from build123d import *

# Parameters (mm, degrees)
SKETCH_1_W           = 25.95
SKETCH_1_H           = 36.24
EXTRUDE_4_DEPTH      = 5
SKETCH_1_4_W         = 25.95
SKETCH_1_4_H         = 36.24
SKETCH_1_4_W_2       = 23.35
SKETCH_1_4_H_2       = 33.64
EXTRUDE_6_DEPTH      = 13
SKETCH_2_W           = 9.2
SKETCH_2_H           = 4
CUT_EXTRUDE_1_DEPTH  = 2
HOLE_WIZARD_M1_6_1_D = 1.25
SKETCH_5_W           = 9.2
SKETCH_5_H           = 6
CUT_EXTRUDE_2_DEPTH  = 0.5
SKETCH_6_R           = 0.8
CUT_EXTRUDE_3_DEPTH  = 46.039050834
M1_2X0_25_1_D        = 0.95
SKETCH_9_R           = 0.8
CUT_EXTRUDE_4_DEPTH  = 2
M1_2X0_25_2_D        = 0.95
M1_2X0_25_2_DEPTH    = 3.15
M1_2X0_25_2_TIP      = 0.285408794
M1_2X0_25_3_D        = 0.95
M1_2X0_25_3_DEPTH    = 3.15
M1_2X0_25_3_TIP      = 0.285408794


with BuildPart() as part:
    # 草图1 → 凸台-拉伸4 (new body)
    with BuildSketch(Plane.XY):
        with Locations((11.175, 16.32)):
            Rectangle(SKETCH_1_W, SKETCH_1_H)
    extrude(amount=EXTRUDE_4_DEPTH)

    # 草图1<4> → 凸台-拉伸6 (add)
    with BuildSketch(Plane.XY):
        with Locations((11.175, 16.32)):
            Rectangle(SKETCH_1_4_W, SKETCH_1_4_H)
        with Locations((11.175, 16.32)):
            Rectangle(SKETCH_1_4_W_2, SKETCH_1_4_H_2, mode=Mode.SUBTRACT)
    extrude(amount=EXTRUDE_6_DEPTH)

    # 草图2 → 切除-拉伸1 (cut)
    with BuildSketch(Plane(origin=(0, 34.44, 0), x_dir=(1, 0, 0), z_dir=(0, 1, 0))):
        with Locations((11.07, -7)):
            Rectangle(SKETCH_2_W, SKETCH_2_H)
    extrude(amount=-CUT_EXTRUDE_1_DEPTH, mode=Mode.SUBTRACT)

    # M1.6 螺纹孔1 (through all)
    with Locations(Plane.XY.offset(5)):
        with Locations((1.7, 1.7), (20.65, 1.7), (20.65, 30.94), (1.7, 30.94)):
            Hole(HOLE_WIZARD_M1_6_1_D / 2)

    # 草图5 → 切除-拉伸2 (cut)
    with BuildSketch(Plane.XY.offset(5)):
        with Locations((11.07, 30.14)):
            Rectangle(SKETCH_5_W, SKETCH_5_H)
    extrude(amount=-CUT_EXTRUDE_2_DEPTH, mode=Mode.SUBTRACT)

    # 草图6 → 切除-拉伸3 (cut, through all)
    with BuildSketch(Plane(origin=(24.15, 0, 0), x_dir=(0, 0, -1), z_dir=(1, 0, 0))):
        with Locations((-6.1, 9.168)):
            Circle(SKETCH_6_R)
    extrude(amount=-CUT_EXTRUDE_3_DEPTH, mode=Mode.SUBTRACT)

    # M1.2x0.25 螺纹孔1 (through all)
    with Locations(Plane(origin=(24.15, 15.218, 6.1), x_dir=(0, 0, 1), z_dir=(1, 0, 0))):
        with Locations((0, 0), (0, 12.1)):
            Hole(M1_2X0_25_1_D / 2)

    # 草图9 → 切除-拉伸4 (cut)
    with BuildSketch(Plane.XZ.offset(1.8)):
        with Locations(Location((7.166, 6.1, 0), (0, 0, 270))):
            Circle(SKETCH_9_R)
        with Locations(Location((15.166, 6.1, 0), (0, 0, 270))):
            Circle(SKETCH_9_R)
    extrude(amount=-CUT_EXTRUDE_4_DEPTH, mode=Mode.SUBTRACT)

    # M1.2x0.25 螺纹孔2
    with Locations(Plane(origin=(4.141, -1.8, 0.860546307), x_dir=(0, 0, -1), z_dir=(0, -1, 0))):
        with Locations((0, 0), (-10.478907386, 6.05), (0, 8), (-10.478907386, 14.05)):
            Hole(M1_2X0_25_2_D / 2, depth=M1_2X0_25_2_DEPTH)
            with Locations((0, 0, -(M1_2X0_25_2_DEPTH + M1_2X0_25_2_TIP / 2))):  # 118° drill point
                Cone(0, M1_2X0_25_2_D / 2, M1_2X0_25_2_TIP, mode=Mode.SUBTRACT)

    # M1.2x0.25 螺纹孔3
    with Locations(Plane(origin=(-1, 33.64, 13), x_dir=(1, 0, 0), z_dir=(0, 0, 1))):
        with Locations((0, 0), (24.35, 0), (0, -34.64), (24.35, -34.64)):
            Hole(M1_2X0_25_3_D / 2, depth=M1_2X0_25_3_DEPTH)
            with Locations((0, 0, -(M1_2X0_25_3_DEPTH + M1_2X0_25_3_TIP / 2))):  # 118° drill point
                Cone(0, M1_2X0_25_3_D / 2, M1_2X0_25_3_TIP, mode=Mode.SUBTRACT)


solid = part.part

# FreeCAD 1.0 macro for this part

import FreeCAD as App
import Part
import Sketcher
from FreeCAD import Vector
Q = App.Units.Quantity


def add_polygon(sketch, points):
    """Adds a closed chain of lines whose ends are joined by coincident constraints."""
    first, n = sketch.GeometryCount, len(points)
    for a, b in zip(points, points[1:] + points[:1]):
        sketch.addGeometry(Part.LineSegment(App.Vector(*a, 0), App.Vector(*b, 0)), False)
    for i in range(n):
        sketch.addConstraint(Sketcher.Constraint("Coincident", first + i, 2, first + (i + 1) % n, 1))

doc = App.newDocument("Part")
body = doc.addObject("PartDesign::Body", "Body")

# Sketch on XY plane
sketch1 = body.newObject("Sketcher::SketchObject", "Sketch")
sketch1.AttachmentSupport = (doc.getObject("XY_Plane"), [""])
sketch1.MapMode = "FlatFace"
add_polygon(sketch1, [(-2, 34), (-2, -2), (24, -2), (24, 34)])  # lines 0-3
sketch1.addConstraint(Sketcher.Constraint("Vertical", 0))
sketch1.addConstraint(Sketcher.Constraint("Horizontal", 1))
sketch1.addConstraint(Sketcher.Constraint("Vertical", 2))
sketch1.addConstraint(Sketcher.Constraint("Horizontal", 3))
sketch1.addConstraint(Sketcher.Constraint("DistanceX", 1, 1, 1, 2, Q("25.95 mm")))
sketch1.addConstraint(Sketcher.Constraint("DistanceY", 0, 2, 0, 1, Q("36.24 mm")))
sketch1.addConstraint(Sketcher.Constraint("DistanceX", 0, 2, -1, 1, Q("1.8 mm")))
sketch1.addConstraint(Sketcher.Constraint("DistanceY", 0, 2, -1, 1, Q("1.8 mm")))
pad1 = body.newObject("PartDesign::Pad", "Pad")
pad1.Profile = sketch1
pad1.Length = 5

# Sketch on XY plane
sketch2 = body.newObject("Sketcher::SketchObject", "Sketch001")
sketch2.AttachmentSupport = (doc.getObject("XY_Plane"), [""])
sketch2.MapMode = "FlatFace"
add_polygon(sketch2, [(-2, 34), (-2, -2), (24, -2), (24, 34)])  # lines 0-3
add_polygon(sketch2, [(23, 0), (0, 0), (0, 33), (23, 33)])  # lines 4-7
sketch2.addConstraint(Sketcher.Constraint("Vertical", 0))
sketch2.addConstraint(Sketcher.Constraint("Horizontal", 1))
sketch2.addConstraint(Sketcher.Constraint("Vertical", 2))
sketch2.addConstraint(Sketcher.Constraint("Horizontal", 3))
sketch2.addConstraint(Sketcher.Constraint("Horizontal", 4))
sketch2.addConstraint(Sketcher.Constraint("Vertical", 5))
sketch2.addConstraint(Sketcher.Constraint("Horizontal", 6))
sketch2.addConstraint(Sketcher.Constraint("Vertical", 7))
sketch2.addConstraint(Sketcher.Constraint("DistanceX", 1, 1, 1, 2, Q("25.95 mm")))
sketch2.addConstraint(Sketcher.Constraint("DistanceX", 4, 2, 4, 1, Q("23.35 mm")))
sketch2.addConstraint(Sketcher.Constraint("DistanceY", 0, 2, 0, 1, Q("36.24 mm")))
sketch2.addConstraint(Sketcher.Constraint("DistanceY", 5, 1, 5, 2, Q("33.64 mm")))
sketch2.addConstraint(Sketcher.Constraint("DistanceX", 0, 2, -1, 1, Q("1.8 mm")))
sketch2.addConstraint(Sketcher.Constraint("DistanceY", 0, 2, -1, 1, Q("1.8 mm")))
sketch2.addConstraint(Sketcher.Constraint("DistanceX", 4, 2, -1, 1, Q("0.5 mm")))
sketch2.addConstraint(Sketcher.Constraint("DistanceY", 4, 2, -1, 1, Q("0.5 mm")))
pad2 = body.newObject("PartDesign::Pad", "Pad001")
pad2.Profile = sketch2
pad2.Length = 13

# Sketch on XZ plane
sketch3 = body.newObject("Sketcher::SketchObject", "Sketch002")
sketch3.AttachmentSupport = (doc.getObject("XZ_Plane"), [""])
sketch3.MapMode = "FlatFace"
sketch3.AttachmentOffset = App.Placement(Vector(0, 0, -34.44), App.Rotation())
add_polygon(sketch3, [(6.5, 5), (6.5, 9), (15.7, 9), (15.7, 5)])  # lines 0-3
sketch3.addConstraint(Sketcher.Constraint("Vertical", 0))
sketch3.addConstraint(Sketcher.Constraint("Horizontal", 1))
sketch3.addConstraint(Sketcher.Constraint("Vertical", 2))
sketch3.addConstraint(Sketcher.Constraint("Horizontal", 3))
sketch3.addConstraint(Sketcher.Constraint("DistanceY", 0, 1, 0, 2, Q("4 mm")))
sketch3.addConstraint(Sketcher.Constraint("DistanceX", 1, 1, 1, 2, Q("9.2 mm")))
sketch3.addConstraint(Sketcher.Constraint("DistanceY", -1, 1, 0, 2, Q("9 mm")))
sketch3.addConstraint(Sketcher.Constraint("DistanceX", -1, 1, 0, 2, Q("6.47 mm")))
pocket1 = body.newObject("PartDesign::Pocket", "Pocket")
pocket1.Profile = sketch3
pocket1.Length = 2
pocket1.Reversed = True

# Sketch on XY plane
sketch4 = body.newObject("Sketcher::SketchObject", "Sketch003")
sketch4.AttachmentSupport = (doc.getObject("XY_Plane"), [""])
sketch4.MapMode = "FlatFace"
sketch4.AttachmentOffset = App.Placement(Vector(0, 0, 5), App.Rotation())
sketch4.addGeometry(Part.Circle(Vector(1.7, 1.7, 0), Vector(0, 0, 1), 0.6), False)
sketch4.addGeometry(Part.Circle(Vector(20.6, 1.7, 0), Vector(0, 0, 1), 0.6), False)
sketch4.addGeometry(Part.Circle(Vector(20.6, 30.9, 0), Vector(0, 0, 1), 0.6), False)
sketch4.addGeometry(Part.Circle(Vector(1.7, 30.9, 0), Vector(0, 0, 1), 0.6), False)
sketch4.addConstraint(Sketcher.Constraint("Equal", 0, 1))
sketch4.addConstraint(Sketcher.Constraint("Equal", 1, 2))
sketch4.addConstraint(Sketcher.Constraint("Equal", 2, 3))
sketch4.addConstraint(Sketcher.Constraint("Horizontal", 0, 3, 1, 3))
sketch4.addConstraint(Sketcher.Constraint("Horizontal", 2, 3, 3, 3))
sketch4.addConstraint(Sketcher.Constraint("Vertical", 1, 3, 2, 3))
sketch4.addConstraint(Sketcher.Constraint("Vertical", 0, 3, 3, 3))
sketch4.addConstraint(Sketcher.Constraint("Diameter", 0, Q("1.25 mm")))
sketch4.addConstraint(Sketcher.Constraint("DistanceX", -1, 1, 0, 3, Q("1.7 mm")))
sketch4.addConstraint(Sketcher.Constraint("DistanceY", -1, 1, 0, 3, Q("1.7 mm")))
sketch4.addConstraint(Sketcher.Constraint("DistanceX", -1, 1, 1, 3, Q("20.65 mm")))
sketch4.addConstraint(Sketcher.Constraint("DistanceY", -1, 1, 2, 3, Q("30.94 mm")))
doc.recompute()
hole = body.newObject("PartDesign::Hole", "Hole")
hole.Profile = sketch4
hole.ThreadType = "None"
hole.Diameter = 1.25
hole.DepthType = "ThroughAll"

# Sketch on XY plane
sketch5 = body.newObject("Sketcher::SketchObject", "Sketch004")
sketch5.AttachmentSupport = (doc.getObject("XY_Plane"), [""])
sketch5.MapMode = "FlatFace"
sketch5.AttachmentOffset = App.Placement(Vector(0, 0, 5), App.Rotation())
add_polygon(sketch5, [(6, 33), (6, 27), (16, 27), (16, 33)])  # lines 0-3
sketch5.addConstraint(Sketcher.Constraint("Vertical", 0))
sketch5.addConstraint(Sketcher.Constraint("Horizontal", 1))
sketch5.addConstraint(Sketcher.Constraint("Vertical", 2))
sketch5.addConstraint(Sketcher.Constraint("Horizontal", 3))
sketch5.addConstraint(Sketcher.Constraint("DistanceY", 0, 2, 0, 1, Q("6 mm")))
sketch5.addConstraint(Sketcher.Constraint("DistanceX", 1, 1, 1, 2, Q("9.2 mm")))
sketch5.addConstraint(Sketcher.Constraint("DistanceX", -1, 1, 0, 2, Q("6.47 mm")))
sketch5.addConstraint(Sketcher.Constraint("DistanceY", -1, 1, 0, 2, Q("27.14 mm")))
pocket2 = body.newObject("PartDesign::Pocket", "Pocket001")
pocket2.Profile = sketch5
pocket2.Length = 0.5

# Sketch on YZ plane
sketch6 = body.newObject("Sketcher::SketchObject", "Sketch005")
sketch6.AttachmentSupport = (doc.getObject("YZ_Plane"), [""])
sketch6.MapMode = "FlatFace"
sketch6.AttachmentOffset = App.Placement(Vector(0, 0, 24.15), App.Rotation())
sketch6.addGeometry(Part.Circle(Vector(9.2, 6.1, 0), Vector(0, 0, 1), 0.8), False)
sketch6.addConstraint(Sketcher.Constraint("Diameter", 0, Q("1.6 mm")))
sketch6.addConstraint(Sketcher.Constraint("DistanceY", -1, 1, 0, 3, Q("6.1 mm")))
sketch6.addConstraint(Sketcher.Constraint("DistanceX", -1, 1, 0, 3, Q("9.168 mm")))
pocket3 = body.newObject("PartDesign::Pocket", "Pocket002")
pocket3.Profile = sketch6
pocket3.Type = "ThroughAll"

# Sketch on YZ plane
sketch7 = body.newObject("Sketcher::SketchObject", "Sketch006")
sketch7.AttachmentSupport = (doc.getObject("YZ_Plane"), [""])
sketch7.MapMode = "FlatFace"
sketch7.AttachmentOffset = App.Placement(Vector(0, 0, 24.15), App.Rotation())
sketch7.addGeometry(Part.Circle(Vector(15.22, 6.1, 0), Vector(0, 0, 1), 0.47), False)
sketch7.addGeometry(Part.Circle(Vector(3.12, 6.1, 0), Vector(0, 0, 1), 0.47), False)
sketch7.addConstraint(Sketcher.Constraint("Equal", 0, 1))
sketch7.addConstraint(Sketcher.Constraint("Horizontal", 0, 3, 1, 3))
sketch7.addConstraint(Sketcher.Constraint("Diameter", 0, Q("0.95 mm")))
sketch7.addConstraint(Sketcher.Constraint("DistanceY", -1, 1, 0, 3, Q("6.1 mm")))
sketch7.addConstraint(Sketcher.Constraint("DistanceX", 1, 3, 0, 3, Q("12.1 mm")))
sketch7.addConstraint(Sketcher.Constraint("DistanceX", -1, 1, 0, 3, Q("15.218 mm")))
doc.recompute()
hole2 = body.newObject("PartDesign::Hole", "Hole001")
hole2.Profile = sketch7
hole2.ThreadType = "None"
hole2.Diameter = 0.95
hole2.DepthType = "ThroughAll"

# Sketch on XZ plane
sketch8 = body.newObject("Sketcher::SketchObject", "Sketch007")
sketch8.AttachmentSupport = (doc.getObject("XZ_Plane"), [""])
sketch8.MapMode = "FlatFace"
sketch8.AttachmentOffset = App.Placement(Vector(0, 0, 1.8), App.Rotation())
sketch8.addGeometry(Part.Circle(Vector(7.2, 6.1, 0), Vector(0, 0, 1), 0.8), False)
sketch8.addGeometry(Part.Circle(Vector(15.2, 6.1, 0), Vector(0, 0, 1), 0.8), False)
sketch8.addConstraint(Sketcher.Constraint("Equal", 0, 1))
sketch8.addConstraint(Sketcher.Constraint("Horizontal", 0, 3, 1, 3))
sketch8.addConstraint(Sketcher.Constraint("Diameter", 0, Q("1.6 mm")))
sketch8.addConstraint(Sketcher.Constraint("DistanceX", 0, 3, 1, 3, Q("8 mm")))
sketch8.addConstraint(Sketcher.Constraint("DistanceY", -1, 1, 0, 3, Q("6.1 mm")))
sketch8.addConstraint(Sketcher.Constraint("DistanceX", -1, 1, 0, 3, Q("7.166 mm")))
pocket4 = body.newObject("PartDesign::Pocket", "Pocket003")
pocket4.Profile = sketch8
pocket4.Length = 2

# Sketch on XZ plane
sketch9 = body.newObject("Sketcher::SketchObject", "Sketch008")
sketch9.AttachmentSupport = (doc.getObject("XZ_Plane"), [""])
sketch9.MapMode = "FlatFace"
sketch9.AttachmentOffset = App.Placement(Vector(0, 0, 1.8), App.Rotation())
sketch9.addGeometry(Part.Circle(Vector(4.14, 0.86, 0), Vector(0, 0, 1), 0.47), False)
sketch9.addGeometry(Part.Circle(Vector(10.19, 11.34, 0), Vector(0, 0, 1), 0.47), False)
sketch9.addGeometry(Part.Circle(Vector(12.14, 0.86, 0), Vector(0, 0, 1), 0.47), False)
sketch9.addGeometry(Part.Circle(Vector(18.19, 11.34, 0), Vector(0, 0, 1), 0.47), False)
sketch9.addConstraint(Sketcher.Constraint("Equal", 0, 1))
sketch9.addConstraint(Sketcher.Constraint("Equal", 1, 2))
sketch9.addConstraint(Sketcher.Constraint("Equal", 2, 3))
sketch9.addConstraint(Sketcher.Constraint("Horizontal", 0, 3, 2, 3))
sketch9.addConstraint(Sketcher.Constraint("Horizontal", 1, 3, 3, 3))
sketch9.addConstraint(Sketcher.Constraint("Diameter", 0, Q("0.95 mm")))
sketch9.addConstraint(Sketcher.Constraint("DistanceX", 0, 3, 2, 3, Q("8 mm")))
sketch9.addConstraint(Sketcher.Constraint("DistanceX", 1, 3, 3, 3, Q("8 mm")))
sketch9.addConstraint(Sketcher.Constraint("DistanceX", 0, 3, 1, 3, Q("6.05 mm")))
sketch9.addConstraint(Sketcher.Constraint("DistanceX", -1, 1, 0, 3, Q("4.141 mm")))
sketch9.addConstraint(Sketcher.Constraint("DistanceY", -1, 1, 0, 3, Q("0.860546 mm")))
sketch9.addConstraint(Sketcher.Constraint("DistanceY", -1, 1, 1, 3, Q("11.339454 mm")))
doc.recompute()
hole3 = body.newObject("PartDesign::Hole", "Hole002")
hole3.Profile = sketch9
hole3.ThreadType = "None"
hole3.Diameter = 0.95
hole3.DepthType = "Dimension"
hole3.Depth = 3.15
hole3.DrillPoint = "Angled"
hole3.DrillPointAngle = 118

# Sketch on XY plane
sketch10 = body.newObject("Sketcher::SketchObject", "Sketch009")
sketch10.AttachmentSupport = (doc.getObject("XY_Plane"), [""])
sketch10.MapMode = "FlatFace"
sketch10.AttachmentOffset = App.Placement(Vector(0, 0, 13), App.Rotation())
sketch10.addGeometry(Part.Circle(Vector(-1, 33.64, 0), Vector(0, 0, 1), 0.47), False)
sketch10.addGeometry(Part.Circle(Vector(23.35, 33.64, 0), Vector(0, 0, 1), 0.47), False)
sketch10.addGeometry(Part.Circle(Vector(-1, -1, 0), Vector(0, 0, 1), 0.47), False)
sketch10.addGeometry(Part.Circle(Vector(23.35, -1, 0), Vector(0, 0, 1), 0.47), False)
sketch10.addConstraint(Sketcher.Constraint("Equal", 0, 1))
sketch10.addConstraint(Sketcher.Constraint("Equal", 1, 2))
sketch10.addConstraint(Sketcher.Constraint("Equal", 2, 3))
sketch10.addConstraint(Sketcher.Constraint("Horizontal", 0, 3, 1, 3))
sketch10.addConstraint(Sketcher.Constraint("Horizontal", 2, 3, 3, 3))
sketch10.addConstraint(Sketcher.Constraint("Vertical", 0, 3, 2, 3))
sketch10.addConstraint(Sketcher.Constraint("Vertical", 1, 3, 3, 3))
sketch10.addConstraint(Sketcher.Constraint("Diameter", 0, Q("0.95 mm")))
sketch10.addConstraint(Sketcher.Constraint("DistanceX", 0, 3, -1, 1, Q("1 mm")))
sketch10.addConstraint(Sketcher.Constraint("DistanceY", 2, 3, -1, 1, Q("1 mm")))
sketch10.addConstraint(Sketcher.Constraint("DistanceY", -1, 1, 0, 3, Q("33.64 mm")))
sketch10.addConstraint(Sketcher.Constraint("DistanceX", -1, 1, 1, 3, Q("23.35 mm")))
doc.recompute()
hole4 = body.newObject("PartDesign::Hole", "Hole003")
hole4.Profile = sketch10
hole4.ThreadType = "None"
hole4.Diameter = 0.95
hole4.DepthType = "Dimension"
hole4.Depth = 3.15
hole4.DrillPoint = "Angled"
hole4.DrillPointAngle = 118

doc.recompute()
